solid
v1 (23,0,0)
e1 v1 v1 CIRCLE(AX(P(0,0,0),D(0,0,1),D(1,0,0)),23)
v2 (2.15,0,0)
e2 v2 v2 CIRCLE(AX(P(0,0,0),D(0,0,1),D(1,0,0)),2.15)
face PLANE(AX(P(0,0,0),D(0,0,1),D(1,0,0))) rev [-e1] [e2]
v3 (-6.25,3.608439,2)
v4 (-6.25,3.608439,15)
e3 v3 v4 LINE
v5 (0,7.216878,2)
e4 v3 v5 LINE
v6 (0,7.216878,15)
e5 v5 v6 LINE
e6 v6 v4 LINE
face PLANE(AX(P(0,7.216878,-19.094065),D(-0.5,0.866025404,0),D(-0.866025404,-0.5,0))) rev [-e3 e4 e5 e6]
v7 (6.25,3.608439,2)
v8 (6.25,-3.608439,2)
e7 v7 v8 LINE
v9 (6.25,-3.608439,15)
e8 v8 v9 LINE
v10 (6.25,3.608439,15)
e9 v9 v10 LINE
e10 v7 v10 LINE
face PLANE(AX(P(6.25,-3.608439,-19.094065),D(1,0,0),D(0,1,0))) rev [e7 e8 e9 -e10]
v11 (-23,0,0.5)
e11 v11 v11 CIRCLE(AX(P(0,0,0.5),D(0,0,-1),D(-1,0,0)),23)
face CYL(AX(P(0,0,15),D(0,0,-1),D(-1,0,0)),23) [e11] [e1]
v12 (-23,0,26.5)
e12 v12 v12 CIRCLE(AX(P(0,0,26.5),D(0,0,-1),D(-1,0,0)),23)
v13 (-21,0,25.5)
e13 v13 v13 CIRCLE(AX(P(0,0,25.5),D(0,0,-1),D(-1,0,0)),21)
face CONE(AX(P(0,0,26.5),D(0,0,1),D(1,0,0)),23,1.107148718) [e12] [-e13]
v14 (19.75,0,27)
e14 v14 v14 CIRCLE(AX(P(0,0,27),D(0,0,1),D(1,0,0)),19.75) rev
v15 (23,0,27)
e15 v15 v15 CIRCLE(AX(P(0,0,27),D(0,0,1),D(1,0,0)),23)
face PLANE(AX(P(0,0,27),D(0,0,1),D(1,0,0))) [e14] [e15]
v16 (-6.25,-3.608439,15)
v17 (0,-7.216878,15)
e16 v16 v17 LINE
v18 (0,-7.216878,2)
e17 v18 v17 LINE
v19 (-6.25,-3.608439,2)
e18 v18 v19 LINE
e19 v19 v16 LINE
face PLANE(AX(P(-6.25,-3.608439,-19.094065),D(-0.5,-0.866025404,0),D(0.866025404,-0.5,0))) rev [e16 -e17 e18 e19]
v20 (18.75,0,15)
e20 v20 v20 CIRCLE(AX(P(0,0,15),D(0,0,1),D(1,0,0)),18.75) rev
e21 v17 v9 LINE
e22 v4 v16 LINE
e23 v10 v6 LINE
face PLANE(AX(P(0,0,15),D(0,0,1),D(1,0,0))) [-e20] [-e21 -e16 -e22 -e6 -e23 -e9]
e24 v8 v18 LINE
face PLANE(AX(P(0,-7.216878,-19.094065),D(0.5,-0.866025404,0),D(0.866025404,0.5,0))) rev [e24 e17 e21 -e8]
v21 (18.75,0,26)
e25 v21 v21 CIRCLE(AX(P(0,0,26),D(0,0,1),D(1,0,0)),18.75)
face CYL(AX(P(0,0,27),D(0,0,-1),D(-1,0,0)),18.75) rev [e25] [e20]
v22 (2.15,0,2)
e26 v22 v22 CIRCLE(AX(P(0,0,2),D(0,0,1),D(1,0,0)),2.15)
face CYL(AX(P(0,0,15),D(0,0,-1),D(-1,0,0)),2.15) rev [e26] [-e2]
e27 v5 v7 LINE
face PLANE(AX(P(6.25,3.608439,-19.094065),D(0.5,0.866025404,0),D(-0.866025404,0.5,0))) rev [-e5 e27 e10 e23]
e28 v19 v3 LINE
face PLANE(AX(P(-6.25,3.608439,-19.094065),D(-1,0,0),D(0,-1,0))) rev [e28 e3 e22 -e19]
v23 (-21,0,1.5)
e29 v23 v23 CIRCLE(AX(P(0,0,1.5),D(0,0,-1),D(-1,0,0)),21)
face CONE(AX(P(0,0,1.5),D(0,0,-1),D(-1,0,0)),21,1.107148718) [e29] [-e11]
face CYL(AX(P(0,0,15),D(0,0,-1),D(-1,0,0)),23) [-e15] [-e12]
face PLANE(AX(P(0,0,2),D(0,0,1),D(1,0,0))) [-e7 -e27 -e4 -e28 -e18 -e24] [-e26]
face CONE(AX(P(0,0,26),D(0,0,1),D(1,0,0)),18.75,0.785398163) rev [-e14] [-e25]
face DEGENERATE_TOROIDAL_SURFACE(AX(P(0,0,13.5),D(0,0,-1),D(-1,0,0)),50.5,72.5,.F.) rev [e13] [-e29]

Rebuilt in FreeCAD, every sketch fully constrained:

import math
import FreeCAD as App
import Part
import Sketcher
Q = App.Units.Quantity


def edges_at(feature, points):
    """Names of the edges that pass closest to the given points."""
    edges = feature.Shape.Edges
    near = lambda p: min(range(len(edges)), key=lambda i: edges[i].distToShape(Part.Vertex(*p))[0])
    return sorted({f"Edge{near(p) + 1}" for p in points})

doc = App.newDocument("Part")
body = doc.addObject("PartDesign::Body", "Body")

sketch1 = doc.addObject("Sketcher::SketchObject", "Sketch")
body.addObject(sketch1)
sketch1.AttachmentSupport = (doc.XY_Plane, [""])
sketch1.MapMode = "FlatFace"
sketch1.addGeometry(Part.Circle(App.Vector(0, 0, 0), App.Vector(0, 0, 1), 23), False)
sketch1.addGeometry(Part.Circle(App.Vector(0, 0, 0), App.Vector(0, 0, 1), 2.1), False)
sketch1.addConstraint(Sketcher.Constraint("Coincident", 0, 3, -1, 1))
sketch1.addConstraint(Sketcher.Constraint("Coincident", 1, 3, -1, 1))
sketch1.addConstraint(Sketcher.Constraint("Diameter", 0, 46.0))
sketch1.addConstraint(Sketcher.Constraint("Diameter", 1, 4.3))
pad1 = doc.addObject("PartDesign::Pad", "Pad")
body.addObject(pad1)
pad1.Profile = sketch1
pad1.Length = 15

sketch2 = doc.addObject("Sketcher::SketchObject", "Sketch001")
body.addObject(sketch2)
sketch2.AttachmentSupport = (doc.XY_Plane, [""])
sketch2.MapMode = "FlatFace"
sketch2.AttachmentOffset = App.Placement(App.Vector(0, 0, 15), App.Rotation())
sketch2.addGeometry(Part.Circle(App.Vector(0, 0, 0), App.Vector(0, 0, 1), 23), False)
sketch2.addGeometry(Part.Circle(App.Vector(0, 0, 0), App.Vector(0, 0, 1), 19), False)
sketch2.addConstraint(Sketcher.Constraint("Coincident", 0, 3, -1, 1))
sketch2.addConstraint(Sketcher.Constraint("Coincident", 1, 3, -1, 1))
sketch2.addConstraint(Sketcher.Constraint("Diameter", 0, 46.0))
sketch2.addConstraint(Sketcher.Constraint("Diameter", 1, 37.5))
pad2 = doc.addObject("PartDesign::Pad", "Pad001")
body.addObject(pad2)
pad2.Profile = sketch2
pad2.Length = 12

sketch3 = doc.addObject("Sketcher::SketchObject", "Sketch002")
body.addObject(sketch3)
sketch3.AttachmentSupport = (doc.XY_Plane, [""])
sketch3.MapMode = "FlatFace"
sketch3.AttachmentOffset = App.Placement(App.Vector(0, 0, 15), App.Rotation())
sketch3.addGeometry(Part.LineSegment(App.Vector(6, -4, 0), App.Vector(6, 4, 0)), False)
sketch3.addGeometry(Part.LineSegment(App.Vector(6, 4, 0), App.Vector(0, 7, 0)), False)
sketch3.addGeometry(Part.LineSegment(App.Vector(0, 7, 0), App.Vector(-6, 4, 0)), False)
sketch3.addGeometry(Part.LineSegment(App.Vector(-6, 4, 0), App.Vector(-6, -4, 0)), False)
sketch3.addGeometry(Part.LineSegment(App.Vector(-6, -4, 0), App.Vector(0, -7, 0)), False)
sketch3.addGeometry(Part.LineSegment(App.Vector(0, -7, 0), App.Vector(6, -4, 0)), False)
sketch3.addConstraint(Sketcher.Constraint("Coincident", 0, 2, 1, 1))
sketch3.addConstraint(Sketcher.Constraint("Coincident", 1, 2, 2, 1))
sketch3.addConstraint(Sketcher.Constraint("Coincident", 2, 2, 3, 1))
sketch3.addConstraint(Sketcher.Constraint("Coincident", 3, 2, 4, 1))
sketch3.addConstraint(Sketcher.Constraint("Coincident", 4, 2, 5, 1))
sketch3.addConstraint(Sketcher.Constraint("Coincident", 5, 2, 0, 1))
sketch3.addConstraint(Sketcher.Constraint("Vertical", 0))
sketch3.addConstraint(Sketcher.Constraint("Vertical", 3))
sketch3.addConstraint(Sketcher.Constraint("Symmetric", 0, 2, 3, 2, -1, 1))
sketch3.addConstraint(Sketcher.Constraint("Symmetric", 1, 2, 4, 2, -1, 1))
sketch3.addConstraint(Sketcher.Constraint("PointOnObject", 1, 2, -2))
sketch3.addConstraint(Sketcher.Constraint("Parallel", 2, 5))
sketch3.addConstraint(Sketcher.Constraint("Horizontal", 0, 2, 2, 2))
sketch3.addConstraint(Sketcher.Constraint("Angle", 1, Q("150 deg")))
sketch3.addConstraint(Sketcher.Constraint("DistanceX", 2, 2, 0, 2, 12.5))
sketch3.addConstraint(Sketcher.Constraint("DistanceY", 0, 1, 0, 2, 7.216878))
pocket1 = doc.addObject("PartDesign::Pocket", "Pocket")
body.addObject(pocket1)
pocket1.Profile = sketch3
pocket1.Length = 13
doc.recompute()

chamfer = doc.addObject("PartDesign::Chamfer", "Chamfer")
body.addObject(chamfer)
chamfer.Base = (pocket1, edges_at(pocket1, [(-18.75, 0, 27)]))
chamfer.Size = 1

sketch4 = doc.addObject("Sketcher::SketchObject", "Sketch003")
body.addObject(sketch4)
sketch4.AttachmentSupport = (doc.YZ_Plane, [""])
sketch4.MapMode = "FlatFace"
sketch4.addGeometry(Part.LineSegment(App.Vector(23, 0.5, 0), App.Vector(23, 26.5, 0)), False)
sketch4.addGeometry(Part.LineSegment(App.Vector(23, 26.5, 0), App.Vector(21, 25.5, 0)), False)
sketch4.addGeometry(Part.ArcOfCircle(Part.Circle(App.Vector(-50.5, 13.5, 0), App.Vector(0, 0, 1), 72.5), math.radians(-9.53), math.radians(9.53)), False)
sketch4.addGeometry(Part.LineSegment(App.Vector(21, 1.5, 0), App.Vector(23, 0.5, 0)), False)
sketch4.addConstraint(Sketcher.Constraint("Coincident", 0, 2, 1, 1))
sketch4.addConstraint(Sketcher.Constraint("Coincident", 1, 2, 2, 2))
sketch4.addConstraint(Sketcher.Constraint("Coincident", 2, 1, 3, 1))
sketch4.addConstraint(Sketcher.Constraint("Coincident", 3, 2, 0, 1))
sketch4.addConstraint(Sketcher.Constraint("Vertical", 0))
sketch4.addConstraint(Sketcher.Constraint("Vertical", 1, 2, 2, 1))
sketch4.addConstraint(Sketcher.Constraint("Equal", 1, 3))
sketch4.addConstraint(Sketcher.Constraint("Radius", 2, 72.5))
sketch4.addConstraint(Sketcher.Constraint("DistanceY", 0, 1, 0, 2, 26.0))
sketch4.addConstraint(Sketcher.Constraint("DistanceX", -1, 1, 0, 2, 23.0))
sketch4.addConstraint(Sketcher.Constraint("DistanceX", -1, 1, 1, 2, 21.0))
sketch4.addConstraint(Sketcher.Constraint("DistanceY", 1, 2, 0, 2, 1.0))
sketch4.addConstraint(Sketcher.Constraint("DistanceY", -1, 1, 2, 3, 13.5))
groove = doc.addObject("PartDesign::Groove", "Groove")
body.addObject(groove)
groove.Profile = sketch4
groove.ReferenceAxis = (sketch4, ["V_Axis"])
groove.Angle = 360

doc.recompute()
